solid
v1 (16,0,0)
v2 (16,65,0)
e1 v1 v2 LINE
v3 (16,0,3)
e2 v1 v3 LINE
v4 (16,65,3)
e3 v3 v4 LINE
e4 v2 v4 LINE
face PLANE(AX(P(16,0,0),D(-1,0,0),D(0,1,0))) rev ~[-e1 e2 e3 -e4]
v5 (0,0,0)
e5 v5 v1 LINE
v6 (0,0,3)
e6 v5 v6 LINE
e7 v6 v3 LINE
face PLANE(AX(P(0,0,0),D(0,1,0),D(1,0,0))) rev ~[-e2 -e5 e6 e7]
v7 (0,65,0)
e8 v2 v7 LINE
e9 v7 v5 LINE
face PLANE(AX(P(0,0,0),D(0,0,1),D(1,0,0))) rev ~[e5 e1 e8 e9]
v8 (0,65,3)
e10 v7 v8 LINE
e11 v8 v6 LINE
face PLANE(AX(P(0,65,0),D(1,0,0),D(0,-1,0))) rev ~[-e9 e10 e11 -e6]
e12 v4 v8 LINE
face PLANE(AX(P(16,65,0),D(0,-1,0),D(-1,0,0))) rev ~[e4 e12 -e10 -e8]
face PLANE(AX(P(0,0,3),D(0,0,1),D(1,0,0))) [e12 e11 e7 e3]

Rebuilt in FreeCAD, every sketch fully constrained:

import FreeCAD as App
import Part
import Sketcher

V = App.Vector
Q = App.Units.Quantity

doc = App.newDocument("Part")
body = doc.addObject("PartDesign::Body", "Body")

sketch1 = body.newObject("Sketcher::SketchObject", "Sketch")
sketch1.AttachmentSupport = (doc.getObject("XY_Plane"), [""])
sketch1.MapMode = "FlatFace"
sketch1.addGeometry(Part.LineSegment(V(0, 65, 0), V(0, 0, 0)), False)
sketch1.addGeometry(Part.LineSegment(V(0, 0, 0), V(16, 0, 0)), False)
sketch1.addGeometry(Part.LineSegment(V(16, 0, 0), V(16, 65, 0)), False)
sketch1.addGeometry(Part.LineSegment(V(16, 65, 0), V(0, 65, 0)), False)
sketch1.addConstraint(Sketcher.Constraint("Coincident", 0, 2, 1, 1))
sketch1.addConstraint(Sketcher.Constraint("Coincident", 1, 2, 2, 1))
sketch1.addConstraint(Sketcher.Constraint("Coincident", 2, 2, 3, 1))
sketch1.addConstraint(Sketcher.Constraint("Coincident", 3, 2, 0, 1))
sketch1.addConstraint(Sketcher.Constraint("Vertical", 0))
sketch1.addConstraint(Sketcher.Constraint("Horizontal", 1))
sketch1.addConstraint(Sketcher.Constraint("Vertical", 2))
sketch1.addConstraint(Sketcher.Constraint("Horizontal", 3))
sketch1.addConstraint(Sketcher.Constraint("Coincident", 0, 2, -1, 1))
sketch1.addConstraint(Sketcher.Constraint("DistanceX", 1, 1, 1, 2, Q("16 mm")))
sketch1.addConstraint(Sketcher.Constraint("DistanceY", 0, 2, 0, 1, Q("65 mm")))
pad1 = body.newObject("PartDesign::Pad", "Pad")
pad1.Profile = sketch1
pad1.Length = 3

doc.recompute()
